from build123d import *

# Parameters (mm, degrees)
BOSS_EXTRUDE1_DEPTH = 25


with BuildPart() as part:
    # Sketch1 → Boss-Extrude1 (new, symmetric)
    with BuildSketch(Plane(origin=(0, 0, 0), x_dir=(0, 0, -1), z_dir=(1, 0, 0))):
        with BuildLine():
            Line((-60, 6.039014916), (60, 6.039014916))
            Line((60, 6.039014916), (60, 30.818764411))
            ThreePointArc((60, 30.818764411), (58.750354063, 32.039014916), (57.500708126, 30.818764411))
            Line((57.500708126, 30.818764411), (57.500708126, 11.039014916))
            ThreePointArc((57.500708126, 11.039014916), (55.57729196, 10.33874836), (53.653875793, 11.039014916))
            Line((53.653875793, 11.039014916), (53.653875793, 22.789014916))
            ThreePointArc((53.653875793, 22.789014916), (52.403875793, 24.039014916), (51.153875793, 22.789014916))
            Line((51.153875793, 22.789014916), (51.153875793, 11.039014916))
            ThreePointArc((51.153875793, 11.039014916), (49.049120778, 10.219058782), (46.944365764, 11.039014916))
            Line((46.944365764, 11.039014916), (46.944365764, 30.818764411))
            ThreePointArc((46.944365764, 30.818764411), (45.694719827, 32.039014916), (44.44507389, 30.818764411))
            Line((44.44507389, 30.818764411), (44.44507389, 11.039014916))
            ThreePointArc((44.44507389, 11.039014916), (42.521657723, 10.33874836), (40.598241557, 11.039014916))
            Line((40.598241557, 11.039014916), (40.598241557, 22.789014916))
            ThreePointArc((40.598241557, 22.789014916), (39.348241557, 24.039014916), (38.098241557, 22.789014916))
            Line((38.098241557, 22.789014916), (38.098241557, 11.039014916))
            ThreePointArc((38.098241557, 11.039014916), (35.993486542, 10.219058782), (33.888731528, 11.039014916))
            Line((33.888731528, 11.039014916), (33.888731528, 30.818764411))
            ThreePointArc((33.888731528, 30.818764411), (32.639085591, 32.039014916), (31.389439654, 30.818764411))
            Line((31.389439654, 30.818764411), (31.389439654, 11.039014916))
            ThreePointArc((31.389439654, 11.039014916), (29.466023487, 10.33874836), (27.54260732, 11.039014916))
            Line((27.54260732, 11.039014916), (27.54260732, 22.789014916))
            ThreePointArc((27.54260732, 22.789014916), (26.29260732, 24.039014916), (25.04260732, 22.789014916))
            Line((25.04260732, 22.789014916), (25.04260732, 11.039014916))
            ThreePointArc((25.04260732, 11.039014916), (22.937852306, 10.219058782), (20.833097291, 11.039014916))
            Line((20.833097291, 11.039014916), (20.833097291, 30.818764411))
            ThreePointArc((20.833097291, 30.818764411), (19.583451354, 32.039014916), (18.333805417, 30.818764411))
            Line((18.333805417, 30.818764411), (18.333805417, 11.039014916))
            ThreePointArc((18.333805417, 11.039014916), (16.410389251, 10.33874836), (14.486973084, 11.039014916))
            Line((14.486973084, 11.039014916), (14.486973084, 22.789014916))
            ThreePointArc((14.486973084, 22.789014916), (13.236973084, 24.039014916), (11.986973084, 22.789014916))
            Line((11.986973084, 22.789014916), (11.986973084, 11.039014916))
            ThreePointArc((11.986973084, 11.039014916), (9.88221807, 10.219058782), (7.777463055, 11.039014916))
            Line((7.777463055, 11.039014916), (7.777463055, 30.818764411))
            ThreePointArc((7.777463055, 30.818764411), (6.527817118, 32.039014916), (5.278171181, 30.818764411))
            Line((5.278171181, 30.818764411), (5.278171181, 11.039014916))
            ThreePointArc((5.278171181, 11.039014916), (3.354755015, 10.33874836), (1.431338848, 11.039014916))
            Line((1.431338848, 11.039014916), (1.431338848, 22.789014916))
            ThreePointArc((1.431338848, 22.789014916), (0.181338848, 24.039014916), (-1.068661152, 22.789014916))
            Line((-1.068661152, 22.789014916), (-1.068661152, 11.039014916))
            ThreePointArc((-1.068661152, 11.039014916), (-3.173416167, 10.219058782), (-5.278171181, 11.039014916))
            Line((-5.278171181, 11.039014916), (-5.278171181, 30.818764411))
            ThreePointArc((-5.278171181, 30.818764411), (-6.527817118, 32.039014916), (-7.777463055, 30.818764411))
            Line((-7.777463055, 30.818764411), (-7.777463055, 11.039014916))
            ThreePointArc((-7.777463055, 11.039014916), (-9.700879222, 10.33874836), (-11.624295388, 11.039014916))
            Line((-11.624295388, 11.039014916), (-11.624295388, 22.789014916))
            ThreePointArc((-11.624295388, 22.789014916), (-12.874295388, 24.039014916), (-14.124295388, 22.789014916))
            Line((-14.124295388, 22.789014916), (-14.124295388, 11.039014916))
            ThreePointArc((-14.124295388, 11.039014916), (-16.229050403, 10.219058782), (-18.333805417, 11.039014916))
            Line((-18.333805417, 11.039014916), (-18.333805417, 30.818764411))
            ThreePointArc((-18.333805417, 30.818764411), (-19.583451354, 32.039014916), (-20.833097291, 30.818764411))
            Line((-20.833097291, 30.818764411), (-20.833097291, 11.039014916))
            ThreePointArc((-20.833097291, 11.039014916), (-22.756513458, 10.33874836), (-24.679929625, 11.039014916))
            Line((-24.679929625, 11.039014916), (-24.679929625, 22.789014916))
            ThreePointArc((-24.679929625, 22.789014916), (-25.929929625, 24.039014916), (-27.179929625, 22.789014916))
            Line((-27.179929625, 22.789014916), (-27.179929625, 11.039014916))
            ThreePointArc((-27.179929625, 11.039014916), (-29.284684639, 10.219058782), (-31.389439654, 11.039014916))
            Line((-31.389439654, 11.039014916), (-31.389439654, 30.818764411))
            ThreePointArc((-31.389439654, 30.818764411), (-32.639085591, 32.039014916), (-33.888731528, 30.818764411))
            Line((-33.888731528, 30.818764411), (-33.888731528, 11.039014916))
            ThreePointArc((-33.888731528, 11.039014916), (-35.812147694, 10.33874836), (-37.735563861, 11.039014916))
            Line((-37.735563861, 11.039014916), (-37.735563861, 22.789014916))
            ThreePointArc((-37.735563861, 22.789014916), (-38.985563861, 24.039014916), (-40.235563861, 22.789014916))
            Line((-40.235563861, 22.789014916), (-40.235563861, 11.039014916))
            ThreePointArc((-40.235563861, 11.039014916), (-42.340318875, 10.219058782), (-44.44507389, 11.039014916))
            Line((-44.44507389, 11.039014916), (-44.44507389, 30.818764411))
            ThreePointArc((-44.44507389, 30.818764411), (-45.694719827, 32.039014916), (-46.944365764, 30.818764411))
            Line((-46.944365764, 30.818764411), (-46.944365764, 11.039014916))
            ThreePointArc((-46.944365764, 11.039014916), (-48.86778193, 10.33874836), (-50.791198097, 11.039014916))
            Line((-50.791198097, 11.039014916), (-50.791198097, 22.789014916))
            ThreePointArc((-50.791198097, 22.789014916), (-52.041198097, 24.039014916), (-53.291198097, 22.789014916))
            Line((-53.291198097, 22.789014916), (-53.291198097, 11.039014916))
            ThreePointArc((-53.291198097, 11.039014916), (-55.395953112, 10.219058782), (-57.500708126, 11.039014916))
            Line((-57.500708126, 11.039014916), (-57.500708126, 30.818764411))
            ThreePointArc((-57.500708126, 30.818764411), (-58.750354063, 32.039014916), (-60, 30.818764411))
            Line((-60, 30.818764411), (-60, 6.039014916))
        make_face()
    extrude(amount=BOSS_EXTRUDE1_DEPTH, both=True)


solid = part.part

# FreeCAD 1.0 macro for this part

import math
import FreeCAD as App
import Part
import Sketcher
Q = App.Units.Quantity

doc = App.newDocument("Part")
body = doc.addObject("PartDesign::Body", "Body")

# Sketch on YZ plane
sketch1 = doc.addObject("Sketcher::SketchObject", "Sketch")
body.addObject(sketch1)
sketch1.AttachmentSupport = (doc.YZ_Plane, [""])
sketch1.MapMode = "FlatFace"
sketch1.addGeometry(Part.LineSegment(App.Vector(6.039015, 60, 0), App.Vector(6.039015, -60, 0)), False)
sketch1.addGeometry(Part.LineSegment(App.Vector(6.039015, -60, 0), App.Vector(30.818764, -60, 0)), False)
sketch1.addGeometry(Part.ArcOfCircle(Part.Circle(App.Vector(30.789015, -58.750354, 0), App.Vector(0, 0, 1), 1.25), math.radians(-88.636255), math.radians(88.636255)), False)
sketch1.addGeometry(Part.LineSegment(App.Vector(30.818764, -57.500708, 0), App.Vector(11.039015, -57.500708, 0)), False)
sketch1.addGeometry(Part.ArcOfCircle(Part.Circle(App.Vector(13.330397, -55.577292, 0), App.Vector(0, 0, 1), 2.991649), math.radians(139.989462), math.radians(220.010538)), False)
sketch1.addGeometry(Part.LineSegment(App.Vector(11.039015, -53.653876, 0), App.Vector(22.789015, -53.653876, 0)), False)
sketch1.addGeometry(Part.ArcOfCircle(Part.Circle(App.Vector(22.789015, -52.403876, 0), App.Vector(0, 0, 1), 1.25), math.radians(-90), math.radians(90)), False)
sketch1.addGeometry(Part.LineSegment(App.Vector(22.789015, -51.153876, 0), App.Vector(11.039015, -51.153876, 0)), False)
sketch1.addGeometry(Part.ArcOfCircle(Part.Circle(App.Vector(13.330397, -49.049121, 0), App.Vector(0, 0, 1), 3.111338), math.radians(137.43089), math.radians(222.56911)), False)
sketch1.addGeometry(Part.LineSegment(App.Vector(11.039015, -46.944366, 0), App.Vector(30.818764, -46.944366, 0)), False)
sketch1.addGeometry(Part.ArcOfCircle(Part.Circle(App.Vector(30.789015, -45.69472, 0), App.Vector(0, 0, 1), 1.25), math.radians(-88.636255), math.radians(88.636255)), False)
sketch1.addGeometry(Part.LineSegment(App.Vector(30.818764, -44.445074, 0), App.Vector(11.039015, -44.445074, 0)), False)
sketch1.addGeometry(Part.ArcOfCircle(Part.Circle(App.Vector(13.330397, -42.521658, 0), App.Vector(0, 0, 1), 2.991649), math.radians(139.989462), math.radians(220.010538)), False)
sketch1.addGeometry(Part.LineSegment(App.Vector(11.039015, -40.598242, 0), App.Vector(22.789015, -40.598242, 0)), False)
sketch1.addGeometry(Part.ArcOfCircle(Part.Circle(App.Vector(22.789015, -39.348242, 0), App.Vector(0, 0, 1), 1.25), math.radians(-90), math.radians(90)), False)
sketch1.addGeometry(Part.LineSegment(App.Vector(22.789015, -38.098242, 0), App.Vector(11.039015, -38.098242, 0)), False)
sketch1.addGeometry(Part.ArcOfCircle(Part.Circle(App.Vector(13.330397, -35.993487, 0), App.Vector(0, 0, 1), 3.111338), math.radians(137.43089), math.radians(222.56911)), False)
sketch1.addGeometry(Part.LineSegment(App.Vector(11.039015, -33.888732, 0), App.Vector(30.818764, -33.888732, 0)), False)
sketch1.addGeometry(Part.ArcOfCircle(Part.Circle(App.Vector(30.789015, -32.639086, 0), App.Vector(0, 0, 1), 1.25), math.radians(-88.636255), math.radians(88.636255)), False)
sketch1.addGeometry(Part.LineSegment(App.Vector(30.818764, -31.38944, 0), App.Vector(11.039015, -31.38944, 0)), False)
sketch1.addGeometry(Part.ArcOfCircle(Part.Circle(App.Vector(13.330397, -29.466023, 0), App.Vector(0, 0, 1), 2.991649), math.radians(139.989462), math.radians(220.010538)), False)
sketch1.addGeometry(Part.LineSegment(App.Vector(11.039015, -27.542607, 0), App.Vector(22.789015, -27.542607, 0)), False)
sketch1.addGeometry(Part.ArcOfCircle(Part.Circle(App.Vector(22.789015, -26.292607, 0), App.Vector(0, 0, 1), 1.25), math.radians(-90), math.radians(90)), False)
sketch1.addGeometry(Part.LineSegment(App.Vector(22.789015, -25.042607, 0), App.Vector(11.039015, -25.042607, 0)), False)
sketch1.addGeometry(Part.ArcOfCircle(Part.Circle(App.Vector(13.330397, -22.937852, 0), App.Vector(0, 0, 1), 3.111338), math.radians(137.43089), math.radians(222.56911)), False)
sketch1.addGeometry(Part.LineSegment(App.Vector(11.039015, -20.833097, 0), App.Vector(30.818764, -20.833097, 0)), False)
sketch1.addGeometry(Part.ArcOfCircle(Part.Circle(App.Vector(30.789015, -19.583451, 0), App.Vector(0, 0, 1), 1.25), math.radians(-88.636255), math.radians(88.636255)), False)
sketch1.addGeometry(Part.LineSegment(App.Vector(30.818764, -18.333805, 0), App.Vector(11.039015, -18.333805, 0)), False)
sketch1.addGeometry(Part.ArcOfCircle(Part.Circle(App.Vector(13.330397, -16.410389, 0), App.Vector(0, 0, 1), 2.991649), math.radians(139.989462), math.radians(220.010538)), False)
sketch1.addGeometry(Part.LineSegment(App.Vector(11.039015, -14.486973, 0), App.Vector(22.789015, -14.486973, 0)), False)
sketch1.addGeometry(Part.ArcOfCircle(Part.Circle(App.Vector(22.789015, -13.236973, 0), App.Vector(0, 0, 1), 1.25), math.radians(-90), math.radians(90)), False)
sketch1.addGeometry(Part.LineSegment(App.Vector(22.789015, -11.986973, 0), App.Vector(11.039015, -11.986973, 0)), False)
sketch1.addGeometry(Part.ArcOfCircle(Part.Circle(App.Vector(13.330397, -9.882218, 0), App.Vector(0, 0, 1), 3.111338), math.radians(137.43089), math.radians(222.56911)), False)
sketch1.addGeometry(Part.LineSegment(App.Vector(11.039015, -7.777463, 0), App.Vector(30.818764, -7.777463, 0)), False)
sketch1.addGeometry(Part.ArcOfCircle(Part.Circle(App.Vector(30.789015, -6.527817, 0), App.Vector(0, 0, 1), 1.25), math.radians(-88.636255), math.radians(88.636255)), False)
sketch1.addGeometry(Part.LineSegment(App.Vector(30.818764, -5.278171, 0), App.Vector(11.039015, -5.278171, 0)), False)
sketch1.addGeometry(Part.ArcOfCircle(Part.Circle(App.Vector(13.330397, -3.354755, 0), App.Vector(0, 0, 1), 2.991649), math.radians(139.989462), math.radians(220.010538)), False)
sketch1.addGeometry(Part.LineSegment(App.Vector(11.039015, -1.431339, 0), App.Vector(22.789015, -1.431339, 0)), False)
sketch1.addGeometry(Part.ArcOfCircle(Part.Circle(App.Vector(22.789015, -0.181339, 0), App.Vector(0, 0, 1), 1.25), math.radians(-90), math.radians(90)), False)
sketch1.addGeometry(Part.LineSegment(App.Vector(22.789015, 1.068661, 0), App.Vector(11.039015, 1.068661, 0)), False)
sketch1.addGeometry(Part.ArcOfCircle(Part.Circle(App.Vector(13.330397, 3.173416, 0), App.Vector(0, 0, 1), 3.111338), math.radians(137.43089), math.radians(222.56911)), False)
sketch1.addGeometry(Part.LineSegment(App.Vector(11.039015, 5.278171, 0), App.Vector(30.818764, 5.278171, 0)), False)
sketch1.addGeometry(Part.ArcOfCircle(Part.Circle(App.Vector(30.789015, 6.527817, 0), App.Vector(0, 0, 1), 1.25), math.radians(-88.636255), math.radians(88.636255)), False)
sketch1.addGeometry(Part.LineSegment(App.Vector(30.818764, 7.777463, 0), App.Vector(11.039015, 7.777463, 0)), False)
sketch1.addGeometry(Part.ArcOfCircle(Part.Circle(App.Vector(13.330397, 9.700879, 0), App.Vector(0, 0, 1), 2.991649), math.radians(139.989462), math.radians(220.010538)), False)
sketch1.addGeometry(Part.LineSegment(App.Vector(11.039015, 11.624295, 0), App.Vector(22.789015, 11.624295, 0)), False)
sketch1.addGeometry(Part.ArcOfCircle(Part.Circle(App.Vector(22.789015, 12.874295, 0), App.Vector(0, 0, 1), 1.25), math.radians(-90), math.radians(90)), False)
sketch1.addGeometry(Part.LineSegment(App.Vector(22.789015, 14.124295, 0), App.Vector(11.039015, 14.124295, 0)), False)
sketch1.addGeometry(Part.ArcOfCircle(Part.Circle(App.Vector(13.330397, 16.22905, 0), App.Vector(0, 0, 1), 3.111338), math.radians(137.43089), math.radians(222.56911)), False)
sketch1.addGeometry(Part.LineSegment(App.Vector(11.039015, 18.333805, 0), App.Vector(30.818764, 18.333805, 0)), False)
sketch1.addGeometry(Part.ArcOfCircle(Part.Circle(App.Vector(30.789015, 19.583451, 0), App.Vector(0, 0, 1), 1.25), math.radians(-88.636255), math.radians(88.636255)), False)
sketch1.addGeometry(Part.LineSegment(App.Vector(30.818764, 20.833097, 0), App.Vector(11.039015, 20.833097, 0)), False)
sketch1.addGeometry(Part.ArcOfCircle(Part.Circle(App.Vector(13.330397, 22.756513, 0), App.Vector(0, 0, 1), 2.991649), math.radians(139.989462), math.radians(220.010538)), False)
sketch1.addGeometry(Part.LineSegment(App.Vector(11.039015, 24.67993, 0), App.Vector(22.789015, 24.67993, 0)), False)
sketch1.addGeometry(Part.ArcOfCircle(Part.Circle(App.Vector(22.789015, 25.92993, 0), App.Vector(0, 0, 1), 1.25), math.radians(-90), math.radians(90)), False)
sketch1.addGeometry(Part.LineSegment(App.Vector(22.789015, 27.17993, 0), App.Vector(11.039015, 27.17993, 0)), False)
sketch1.addGeometry(Part.ArcOfCircle(Part.Circle(App.Vector(13.330397, 29.284685, 0), App.Vector(0, 0, 1), 3.111338), math.radians(137.43089), math.radians(222.56911)), False)
sketch1.addGeometry(Part.LineSegment(App.Vector(11.039015, 31.38944, 0), App.Vector(30.818764, 31.38944, 0)), False)
sketch1.addGeometry(Part.ArcOfCircle(Part.Circle(App.Vector(30.789015, 32.639086, 0), App.Vector(0, 0, 1), 1.25), math.radians(-88.636255), math.radians(88.636255)), False)
sketch1.addGeometry(Part.LineSegment(App.Vector(30.818764, 33.888732, 0), App.Vector(11.039015, 33.888732, 0)), False)
sketch1.addGeometry(Part.ArcOfCircle(Part.Circle(App.Vector(13.330397, 35.812148, 0), App.Vector(0, 0, 1), 2.991649), math.radians(139.989462), math.radians(220.010538)), False)
sketch1.addGeometry(Part.LineSegment(App.Vector(11.039015, 37.735564, 0), App.Vector(22.789015, 37.735564, 0)), False)
sketch1.addGeometry(Part.ArcOfCircle(Part.Circle(App.Vector(22.789015, 38.985564, 0), App.Vector(0, 0, 1), 1.25), math.radians(-90), math.radians(90)), False)
sketch1.addGeometry(Part.LineSegment(App.Vector(22.789015, 40.235564, 0), App.Vector(11.039015, 40.235564, 0)), False)
sketch1.addGeometry(Part.ArcOfCircle(Part.Circle(App.Vector(13.330397, 42.340319, 0), App.Vector(0, 0, 1), 3.111338), math.radians(137.43089), math.radians(222.56911)), False)
sketch1.addGeometry(Part.LineSegment(App.Vector(11.039015, 44.445074, 0), App.Vector(30.818764, 44.445074, 0)), False)
sketch1.addGeometry(Part.ArcOfCircle(Part.Circle(App.Vector(30.789015, 45.69472, 0), App.Vector(0, 0, 1), 1.25), math.radians(-88.636255), math.radians(88.636255)), False)
sketch1.addGeometry(Part.LineSegment(App.Vector(30.818764, 46.944366, 0), App.Vector(11.039015, 46.944366, 0)), False)
sketch1.addGeometry(Part.ArcOfCircle(Part.Circle(App.Vector(13.330397, 48.867782, 0), App.Vector(0, 0, 1), 2.991649), math.radians(139.989462), math.radians(220.010538)), False)
sketch1.addGeometry(Part.LineSegment(App.Vector(11.039015, 50.791198, 0), App.Vector(22.789015, 50.791198, 0)), False)
sketch1.addGeometry(Part.ArcOfCircle(Part.Circle(App.Vector(22.789015, 52.041198, 0), App.Vector(0, 0, 1), 1.25), math.radians(-90), math.radians(90)), False)
sketch1.addGeometry(Part.LineSegment(App.Vector(22.789015, 53.291198, 0), App.Vector(11.039015, 53.291198, 0)), False)
sketch1.addGeometry(Part.ArcOfCircle(Part.Circle(App.Vector(13.330397, 55.395953, 0), App.Vector(0, 0, 1), 3.111338), math.radians(137.43089), math.radians(222.56911)), False)
sketch1.addGeometry(Part.LineSegment(App.Vector(11.039015, 57.500708, 0), App.Vector(30.818764, 57.500708, 0)), False)
sketch1.addGeometry(Part.ArcOfCircle(Part.Circle(App.Vector(30.789015, 58.750354, 0), App.Vector(0, 0, 1), 1.25), math.radians(-88.636255), math.radians(88.636255)), False)
sketch1.addGeometry(Part.LineSegment(App.Vector(30.818764, 60, 0), App.Vector(6.039015, 60, 0)), False)
sketch1.addConstraint(Sketcher.Constraint("Coincident", 0, 2, 1, 1))
sketch1.addConstraint(Sketcher.Constraint("Coincident", 1, 2, 2, 1))
sketch1.addConstraint(Sketcher.Constraint("Coincident", 2, 2, 3, 1))
sketch1.addConstraint(Sketcher.Constraint("Coincident", 3, 2, 4, 2))
sketch1.addConstraint(Sketcher.Constraint("Coincident", 4, 1, 5, 1))
sketch1.addConstraint(Sketcher.Constraint("Coincident", 5, 2, 6, 1))
sketch1.addConstraint(Sketcher.Constraint("Coincident", 6, 2, 7, 1))
sketch1.addConstraint(Sketcher.Constraint("Coincident", 7, 2, 8, 2))
sketch1.addConstraint(Sketcher.Constraint("Coincident", 8, 1, 9, 1))
sketch1.addConstraint(Sketcher.Constraint("Coincident", 9, 2, 10, 1))
sketch1.addConstraint(Sketcher.Constraint("Coincident", 10, 2, 11, 1))
sketch1.addConstraint(Sketcher.Constraint("Coincident", 11, 2, 12, 2))
sketch1.addConstraint(Sketcher.Constraint("Coincident", 12, 1, 13, 1))
sketch1.addConstraint(Sketcher.Constraint("Coincident", 13, 2, 14, 1))
sketch1.addConstraint(Sketcher.Constraint("Coincident", 14, 2, 15, 1))
sketch1.addConstraint(Sketcher.Constraint("Coincident", 15, 2, 16, 2))
sketch1.addConstraint(Sketcher.Constraint("Coincident", 16, 1, 17, 1))
sketch1.addConstraint(Sketcher.Constraint("Coincident", 17, 2, 18, 1))
sketch1.addConstraint(Sketcher.Constraint("Coincident", 18, 2, 19, 1))
sketch1.addConstraint(Sketcher.Constraint("Coincident", 19, 2, 20, 2))
sketch1.addConstraint(Sketcher.Constraint("Coincident", 20, 1, 21, 1))
sketch1.addConstraint(Sketcher.Constraint("Coincident", 21, 2, 22, 1))
sketch1.addConstraint(Sketcher.Constraint("Coincident", 22, 2, 23, 1))
sketch1.addConstraint(Sketcher.Constraint("Coincident", 23, 2, 24, 2))
sketch1.addConstraint(Sketcher.Constraint("Coincident", 24, 1, 25, 1))
sketch1.addConstraint(Sketcher.Constraint("Coincident", 25, 2, 26, 1))
sketch1.addConstraint(Sketcher.Constraint("Coincident", 26, 2, 27, 1))
sketch1.addConstraint(Sketcher.Constraint("Coincident", 27, 2, 28, 2))
sketch1.addConstraint(Sketcher.Constraint("Coincident", 28, 1, 29, 1))
sketch1.addConstraint(Sketcher.Constraint("Coincident", 29, 2, 30, 1))
sketch1.addConstraint(Sketcher.Constraint("Coincident", 30, 2, 31, 1))
sketch1.addConstraint(Sketcher.Constraint("Coincident", 31, 2, 32, 2))
sketch1.addConstraint(Sketcher.Constraint("Coincident", 32, 1, 33, 1))
sketch1.addConstraint(Sketcher.Constraint("Coincident", 33, 2, 34, 1))
sketch1.addConstraint(Sketcher.Constraint("Coincident", 34, 2, 35, 1))
sketch1.addConstraint(Sketcher.Constraint("Coincident", 35, 2, 36, 2))
sketch1.addConstraint(Sketcher.Constraint("Coincident", 36, 1, 37, 1))
sketch1.addConstraint(Sketcher.Constraint("Coincident", 37, 2, 38, 1))
sketch1.addConstraint(Sketcher.Constraint("Coincident", 38, 2, 39, 1))
sketch1.addConstraint(Sketcher.Constraint("Coincident", 39, 2, 40, 2))
sketch1.addConstraint(Sketcher.Constraint("Coincident", 40, 1, 41, 1))
sketch1.addConstraint(Sketcher.Constraint("Coincident", 41, 2, 42, 1))
sketch1.addConstraint(Sketcher.Constraint("Coincident", 42, 2, 43, 1))
sketch1.addConstraint(Sketcher.Constraint("Coincident", 43, 2, 44, 2))
sketch1.addConstraint(Sketcher.Constraint("Coincident", 44, 1, 45, 1))
sketch1.addConstraint(Sketcher.Constraint("Coincident", 45, 2, 46, 1))
sketch1.addConstraint(Sketcher.Constraint("Coincident", 46, 2, 47, 1))
sketch1.addConstraint(Sketcher.Constraint("Coincident", 47, 2, 48, 2))
sketch1.addConstraint(Sketcher.Constraint("Coincident", 48, 1, 49, 1))
sketch1.addConstraint(Sketcher.Constraint("Coincident", 49, 2, 50, 1))
sketch1.addConstraint(Sketcher.Constraint("Coincident", 50, 2, 51, 1))
sketch1.addConstraint(Sketcher.Constraint("Coincident", 51, 2, 52, 2))
sketch1.addConstraint(Sketcher.Constraint("Coincident", 52, 1, 53, 1))
sketch1.addConstraint(Sketcher.Constraint("Coincident", 53, 2, 54, 1))
sketch1.addConstraint(Sketcher.Constraint("Coincident", 54, 2, 55, 1))
sketch1.addConstraint(Sketcher.Constraint("Coincident", 55, 2, 56, 2))
sketch1.addConstraint(Sketcher.Constraint("Coincident", 56, 1, 57, 1))
sketch1.addConstraint(Sketcher.Constraint("Coincident", 57, 2, 58, 1))
sketch1.addConstraint(Sketcher.Constraint("Coincident", 58, 2, 59, 1))
sketch1.addConstraint(Sketcher.Constraint("Coincident", 59, 2, 60, 2))
sketch1.addConstraint(Sketcher.Constraint("Coincident", 60, 1, 61, 1))
sketch1.addConstraint(Sketcher.Constraint("Coincident", 61, 2, 62, 1))
sketch1.addConstraint(Sketcher.Constraint("Coincident", 62, 2, 63, 1))
sketch1.addConstraint(Sketcher.Constraint("Coincident", 63, 2, 64, 2))
sketch1.addConstraint(Sketcher.Constraint("Coincident", 64, 1, 65, 1))
sketch1.addConstraint(Sketcher.Constraint("Coincident", 65, 2, 66, 1))
sketch1.addConstraint(Sketcher.Constraint("Coincident", 66, 2, 67, 1))
sketch1.addConstraint(Sketcher.Constraint("Coincident", 67, 2, 68, 2))
sketch1.addConstraint(Sketcher.Constraint("Coincident", 68, 1, 69, 1))
sketch1.addConstraint(Sketcher.Constraint("Coincident", 69, 2, 70, 1))
sketch1.addConstraint(Sketcher.Constraint("Coincident", 70, 2, 71, 1))
sketch1.addConstraint(Sketcher.Constraint("Coincident", 71, 2, 72, 2))
sketch1.addConstraint(Sketcher.Constraint("Coincident", 72, 1, 73, 1))
sketch1.addConstraint(Sketcher.Constraint("Coincident", 73, 2, 74, 1))
sketch1.addConstraint(Sketcher.Constraint("Coincident", 74, 2, 75, 1))
sketch1.addConstraint(Sketcher.Constraint("Coincident", 75, 2, 0, 1))
sketch1.addConstraint(Sketcher.Constraint("Vertical", 0))
sketch1.addConstraint(Sketcher.Constraint("Horizontal", 1))
sketch1.addConstraint(Sketcher.Constraint("Horizontal", 3))
sketch1.addConstraint(Sketcher.Constraint("Horizontal", 5))
sketch1.addConstraint(Sketcher.Constraint("Horizontal", 7))
sketch1.addConstraint(Sketcher.Constraint("Horizontal", 9))
sketch1.addConstraint(Sketcher.Constraint("Horizontal", 11))
sketch1.addConstraint(Sketcher.Constraint("Horizontal", 13))
sketch1.addConstraint(Sketcher.Constraint("Horizontal", 15))
sketch1.addConstraint(Sketcher.Constraint("Horizontal", 17))
sketch1.addConstraint(Sketcher.Constraint("Horizontal", 19))
sketch1.addConstraint(Sketcher.Constraint("Horizontal", 21))
sketch1.addConstraint(Sketcher.Constraint("Horizontal", 23))
sketch1.addConstraint(Sketcher.Constraint("Horizontal", 25))
sketch1.addConstraint(Sketcher.Constraint("Horizontal", 27))
sketch1.addConstraint(Sketcher.Constraint("Horizontal", 29))
sketch1.addConstraint(Sketcher.Constraint("Horizontal", 31))
sketch1.addConstraint(Sketcher.Constraint("Horizontal", 33))
sketch1.addConstraint(Sketcher.Constraint("Horizontal", 35))
sketch1.addConstraint(Sketcher.Constraint("Horizontal", 37))
sketch1.addConstraint(Sketcher.Constraint("Horizontal", 39))
sketch1.addConstraint(Sketcher.Constraint("Horizontal", 41))
sketch1.addConstraint(Sketcher.Constraint("Horizontal", 43))
sketch1.addConstraint(Sketcher.Constraint("Horizontal", 45))
sketch1.addConstraint(Sketcher.Constraint("Horizontal", 47))
sketch1.addConstraint(Sketcher.Constraint("Horizontal", 49))
sketch1.addConstraint(Sketcher.Constraint("Horizontal", 51))
sketch1.addConstraint(Sketcher.Constraint("Horizontal", 53))
sketch1.addConstraint(Sketcher.Constraint("Horizontal", 55))
sketch1.addConstraint(Sketcher.Constraint("Horizontal", 57))
sketch1.addConstraint(Sketcher.Constraint("Horizontal", 59))
sketch1.addConstraint(Sketcher.Constraint("Horizontal", 61))
sketch1.addConstraint(Sketcher.Constraint("Horizontal", 63))
sketch1.addConstraint(Sketcher.Constraint("Horizontal", 65))
sketch1.addConstraint(Sketcher.Constraint("Horizontal", 67))
sketch1.addConstraint(Sketcher.Constraint("Horizontal", 69))
sketch1.addConstraint(Sketcher.Constraint("Horizontal", 71))
sketch1.addConstraint(Sketcher.Constraint("Horizontal", 73))
sketch1.addConstraint(Sketcher.Constraint("Horizontal", 75))
sketch1.addConstraint(Sketcher.Constraint("DistanceY", 0, 2, 0, 1, Q("120 mm")))
sketch1.addConstraint(Sketcher.Constraint("Radius", 2, Q("1.25 mm")))
sketch1.addConstraint(Sketcher.Constraint("Radius", 6, Q("1.25 mm")))
sketch1.addConstraint(Sketcher.Constraint("Radius", 10, Q("1.25 mm")))
sketch1.addConstraint(Sketcher.Constraint("Radius", 14, Q("1.25 mm")))
sketch1.addConstraint(Sketcher.Constraint("Radius", 18, Q("1.25 mm")))
sketch1.addConstraint(Sketcher.Constraint("Radius", 22, Q("1.25 mm")))
sketch1.addConstraint(Sketcher.Constraint("Radius", 26, Q("1.25 mm")))
sketch1.addConstraint(Sketcher.Constraint("Radius", 30, Q("1.25 mm")))
sketch1.addConstraint(Sketcher.Constraint("Radius", 34, Q("1.25 mm")))
sketch1.addConstraint(Sketcher.Constraint("Radius", 38, Q("1.25 mm")))
sketch1.addConstraint(Sketcher.Constraint("Radius", 42, Q("1.25 mm")))
sketch1.addConstraint(Sketcher.Constraint("Radius", 46, Q("1.25 mm")))
sketch1.addConstraint(Sketcher.Constraint("Radius", 50, Q("1.25 mm")))
sketch1.addConstraint(Sketcher.Constraint("Radius", 54, Q("1.25 mm")))
sketch1.addConstraint(Sketcher.Constraint("Radius", 58, Q("1.25 mm")))
sketch1.addConstraint(Sketcher.Constraint("Radius", 62, Q("1.25 mm")))
sketch1.addConstraint(Sketcher.Constraint("Radius", 66, Q("1.25 mm")))
sketch1.addConstraint(Sketcher.Constraint("Radius", 70, Q("1.25 mm")))
sketch1.addConstraint(Sketcher.Constraint("Radius", 74, Q("1.25 mm")))
sketch1.addConstraint(Sketcher.Constraint("DistanceY", 0, 2, -1, 1, Q("60 mm")))
sketch1.addConstraint(Sketcher.Constraint("DistanceX", 5, 1, 5, 2, Q("11.75 mm")))
sketch1.addConstraint(Sketcher.Constraint("DistanceX", 7, 2, 7, 1, Q("11.75 mm")))
sketch1.addConstraint(Sketcher.Constraint("DistanceX", 13, 1, 13, 2, Q("11.75 mm")))
sketch1.addConstraint(Sketcher.Constraint("DistanceX", 15, 2, 15, 1, Q("11.75 mm")))
sketch1.addConstraint(Sketcher.Constraint("DistanceX", 21, 1, 21, 2, Q("11.75 mm")))
sketch1.addConstraint(Sketcher.Constraint("DistanceX", 23, 2, 23, 1, Q("11.75 mm")))
sketch1.addConstraint(Sketcher.Constraint("DistanceX", 29, 1, 29, 2, Q("11.75 mm")))
sketch1.addConstraint(Sketcher.Constraint("DistanceX", 31, 2, 31, 1, Q("11.75 mm")))
sketch1.addConstraint(Sketcher.Constraint("DistanceX", 37, 1, 37, 2, Q("11.75 mm")))
sketch1.addConstraint(Sketcher.Constraint("DistanceX", 39, 2, 39, 1, Q("11.75 mm")))
sketch1.addConstraint(Sketcher.Constraint("DistanceX", 45, 1, 45, 2, Q("11.75 mm")))
sketch1.addConstraint(Sketcher.Constraint("DistanceX", 47, 2, 47, 1, Q("11.75 mm")))
sketch1.addConstraint(Sketcher.Constraint("DistanceX", 53, 1, 53, 2, Q("11.75 mm")))
sketch1.addConstraint(Sketcher.Constraint("DistanceX", 55, 2, 55, 1, Q("11.75 mm")))
sketch1.addConstraint(Sketcher.Constraint("DistanceX", 61, 1, 61, 2, Q("11.75 mm")))
sketch1.addConstraint(Sketcher.Constraint("DistanceX", 63, 2, 63, 1, Q("11.75 mm")))
sketch1.addConstraint(Sketcher.Constraint("DistanceX", 69, 1, 69, 2, Q("11.75 mm")))
sketch1.addConstraint(Sketcher.Constraint("DistanceX", 71, 2, 71, 1, Q("11.75 mm")))
sketch1.addConstraint(Sketcher.Constraint("Radius", 4, Q("2.991649 mm")))
sketch1.addConstraint(Sketcher.Constraint("Radius", 8, Q("3.111338 mm")))
sketch1.addConstraint(Sketcher.Constraint("Radius", 12, Q("2.991649 mm")))
sketch1.addConstraint(Sketcher.Constraint("Radius", 16, Q("3.111338 mm")))
sketch1.addConstraint(Sketcher.Constraint("Radius", 20, Q("2.991649 mm")))
sketch1.addConstraint(Sketcher.Constraint("Radius", 24, Q("3.111338 mm")))
sketch1.addConstraint(Sketcher.Constraint("Radius", 28, Q("2.991649 mm")))
sketch1.addConstraint(Sketcher.Constraint("Radius", 32, Q("3.111338 mm")))
sketch1.addConstraint(Sketcher.Constraint("Radius", 36, Q("2.991649 mm")))
sketch1.addConstraint(Sketcher.Constraint("Radius", 40, Q("3.111338 mm")))
sketch1.addConstraint(Sketcher.Constraint("Radius", 44, Q("2.991649 mm")))
sketch1.addConstraint(Sketcher.Constraint("Radius", 48, Q("3.111338 mm")))
sketch1.addConstraint(Sketcher.Constraint("Radius", 52, Q("2.991649 mm")))
sketch1.addConstraint(Sketcher.Constraint("Radius", 56, Q("3.111338 mm")))
sketch1.addConstraint(Sketcher.Constraint("Radius", 60, Q("2.991649 mm")))
sketch1.addConstraint(Sketcher.Constraint("Radius", 64, Q("3.111338 mm")))
sketch1.addConstraint(Sketcher.Constraint("Radius", 68, Q("2.991649 mm")))
sketch1.addConstraint(Sketcher.Constraint("Radius", 72, Q("3.111338 mm")))
sketch1.addConstraint(Sketcher.Constraint("DistanceX", 1, 1, 1, 2, Q("24.779749 mm")))
sketch1.addConstraint(Sketcher.Constraint("DistanceX", 3, 2, 3, 1, Q("19.779749 mm")))
sketch1.addConstraint(Sketcher.Constraint("DistanceX", 9, 1, 9, 2, Q("19.779749 mm")))
sketch1.addConstraint(Sketcher.Constraint("DistanceX", 11, 2, 11, 1, Q("19.779749 mm")))
sketch1.addConstraint(Sketcher.Constraint("DistanceX", 17, 1, 17, 2, Q("19.779749 mm")))
sketch1.addConstraint(Sketcher.Constraint("DistanceX", 19, 2, 19, 1, Q("19.779749 mm")))
sketch1.addConstraint(Sketcher.Constraint("DistanceX", 25, 1, 25, 2, Q("19.779749 mm")))
sketch1.addConstraint(Sketcher.Constraint("DistanceX", 27, 2, 27, 1, Q("19.779749 mm")))
sketch1.addConstraint(Sketcher.Constraint("DistanceX", 33, 1, 33, 2, Q("19.779749 mm")))
sketch1.addConstraint(Sketcher.Constraint("DistanceX", 35, 2, 35, 1, Q("19.779749 mm")))
sketch1.addConstraint(Sketcher.Constraint("DistanceX", 41, 1, 41, 2, Q("19.779749 mm")))
sketch1.addConstraint(Sketcher.Constraint("DistanceX", 43, 2, 43, 1, Q("19.779749 mm")))
sketch1.addConstraint(Sketcher.Constraint("DistanceX", 49, 1, 49, 2, Q("19.779749 mm")))
sketch1.addConstraint(Sketcher.Constraint("DistanceX", 51, 2, 51, 1, Q("19.779749 mm")))
sketch1.addConstraint(Sketcher.Constraint("DistanceX", 57, 1, 57, 2, Q("19.779749 mm")))
sketch1.addConstraint(Sketcher.Constraint("DistanceX", 59, 2, 59, 1, Q("19.779749 mm")))
sketch1.addConstraint(Sketcher.Constraint("DistanceX", 65, 1, 65, 2, Q("19.779749 mm")))
sketch1.addConstraint(Sketcher.Constraint("DistanceX", 67, 2, 67, 1, Q("19.779749 mm")))
sketch1.addConstraint(Sketcher.Constraint("DistanceX", 73, 1, 73, 2, Q("19.779749 mm")))
sketch1.addConstraint(Sketcher.Constraint("DistanceX", 75, 2, 75, 1, Q("24.779749 mm")))
sketch1.addConstraint(Sketcher.Constraint("DistanceY", -1, 1, 70, 3, Q("52.041198 mm")))
sketch1.addConstraint(Sketcher.Constraint("DistanceY", 4, 3, -1, 1, Q("55.577292 mm")))
sketch1.addConstraint(Sketcher.Constraint("DistanceY", 8, 3, -1, 1, Q("49.049121 mm")))
sketch1.addConstraint(Sketcher.Constraint("DistanceY", 10, 3, -1, 1, Q("45.69472 mm")))
sketch1.addConstraint(Sketcher.Constraint("DistanceY", 14, 3, -1, 1, Q("39.348242 mm")))
sketch1.addConstraint(Sketcher.Constraint("DistanceY", 26, 3, -1, 1, Q("19.583451 mm")))
sketch1.addConstraint(Sketcher.Constraint("DistanceY", 28, 3, -1, 1, Q("16.410389 mm")))
sketch1.addConstraint(Sketcher.Constraint("DistanceY", 32, 3, -1, 1, Q("9.882218 mm")))
sketch1.addConstraint(Sketcher.Constraint("DistanceY", 38, 3, -1, 1, Q("0.181339 mm")))
sketch1.addConstraint(Sketcher.Constraint("DistanceY", -1, 1, 44, 3, Q("9.700879 mm")))
sketch1.addConstraint(Sketcher.Constraint("DistanceY", -1, 1, 48, 3, Q("16.22905 mm")))
sketch1.addConstraint(Sketcher.Constraint("DistanceY", -1, 1, 50, 3, Q("19.583451 mm")))
sketch1.addConstraint(Sketcher.Constraint("DistanceY", -1, 1, 54, 3, Q("25.92993 mm")))
sketch1.addConstraint(Sketcher.Constraint("DistanceY", -1, 1, 64, 3, Q("42.340319 mm")))
sketch1.addConstraint(Sketcher.Constraint("DistanceY", -1, 1, 66, 3, Q("45.69472 mm")))
sketch1.addConstraint(Sketcher.Constraint("DistanceY", -1, 1, 68, 3, Q("48.867782 mm")))
sketch1.addConstraint(Sketcher.Constraint("DistanceY", 2, 2, -1, 1, Q("57.500708 mm")))
sketch1.addConstraint(Sketcher.Constraint("DistanceY", 16, 1, -1, 1, Q("33.888732 mm")))
sketch1.addConstraint(Sketcher.Constraint("DistanceY", 18, 2, -1, 1, Q("31.38944 mm")))
sketch1.addConstraint(Sketcher.Constraint("DistanceY", 34, 2, -1, 1, Q("5.278171 mm")))
sketch1.addConstraint(Sketcher.Constraint("DistanceY", -1, 1, 40, 1, Q("5.278171 mm")))
sketch1.addConstraint(Sketcher.Constraint("DistanceY", -1, 1, 56, 1, Q("31.38944 mm")))
sketch1.addConstraint(Sketcher.Constraint("DistanceY", -1, 1, 58, 2, Q("33.888732 mm")))
sketch1.addConstraint(Sketcher.Constraint("DistanceY", -1, 1, 72, 1, Q("57.500708 mm")))
sketch1.addConstraint(Sketcher.Constraint("DistanceX", -1, 1, 2, 3, Q("30.789015 mm")))
sketch1.addConstraint(Sketcher.Constraint("DistanceY", 2, 3, -1, 1, Q("58.750354 mm")))
sketch1.addConstraint(Sketcher.Constraint("DistanceX", -1, 1, 6, 3, Q("22.789015 mm")))
sketch1.addConstraint(Sketcher.Constraint("DistanceY", 6, 3, -1, 1, Q("52.403876 mm")))
sketch1.addConstraint(Sketcher.Constraint("DistanceX", -1, 1, 8, 3, Q("13.330397 mm")))
sketch1.addConstraint(Sketcher.Constraint("DistanceX", -1, 1, 10, 3, Q("30.789015 mm")))
sketch1.addConstraint(Sketcher.Constraint("DistanceX", -1, 1, 12, 3, Q("13.330397 mm")))
sketch1.addConstraint(Sketcher.Constraint("DistanceY", 12, 3, -1, 1, Q("42.521658 mm")))
sketch1.addConstraint(Sketcher.Constraint("DistanceX", -1, 1, 14, 3, Q("22.789015 mm")))
sketch1.addConstraint(Sketcher.Constraint("DistanceX", -1, 1, 16, 3, Q("13.330397 mm")))
sketch1.addConstraint(Sketcher.Constraint("DistanceY", 16, 3, -1, 1, Q("35.993487 mm")))
sketch1.addConstraint(Sketcher.Constraint("DistanceX", -1, 1, 18, 3, Q("30.789015 mm")))
sketch1.addConstraint(Sketcher.Constraint("DistanceX", -1, 1, 20, 3, Q("13.330397 mm")))
sketch1.addConstraint(Sketcher.Constraint("DistanceX", -1, 1, 22, 3, Q("22.789015 mm")))
sketch1.addConstraint(Sketcher.Constraint("DistanceY", 22, 3, -1, 1, Q("26.292607 mm")))
sketch1.addConstraint(Sketcher.Constraint("DistanceX", -1, 1, 24, 3, Q("13.330397 mm")))
sketch1.addConstraint(Sketcher.Constraint("DistanceY", 24, 3, -1, 1, Q("22.937852 mm")))
sketch1.addConstraint(Sketcher.Constraint("DistanceX", -1, 1, 26, 3, Q("30.789015 mm")))
sketch1.addConstraint(Sketcher.Constraint("DistanceX", -1, 1, 28, 3, Q("13.330397 mm")))
sketch1.addConstraint(Sketcher.Constraint("DistanceX", -1, 1, 30, 3, Q("22.789015 mm")))
sketch1.addConstraint(Sketcher.Constraint("DistanceY", 30, 3, -1, 1, Q("13.236973 mm")))
sketch1.addConstraint(Sketcher.Constraint("DistanceX", -1, 1, 32, 3, Q("13.330397 mm")))
sketch1.addConstraint(Sketcher.Constraint("DistanceX", -1, 1, 34, 3, Q("30.789015 mm")))
sketch1.addConstraint(Sketcher.Constraint("DistanceY", 34, 3, -1, 1, Q("6.527817 mm")))
sketch1.addConstraint(Sketcher.Constraint("DistanceX", -1, 1, 36, 3, Q("13.330397 mm")))
sketch1.addConstraint(Sketcher.Constraint("DistanceX", -1, 1, 38, 3, Q("22.789015 mm")))
sketch1.addConstraint(Sketcher.Constraint("DistanceX", -1, 1, 40, 3, Q("13.330397 mm")))
sketch1.addConstraint(Sketcher.Constraint("DistanceY", -1, 1, 40, 3, Q("3.173416 mm")))
sketch1.addConstraint(Sketcher.Constraint("DistanceX", -1, 1, 42, 3, Q("30.789015 mm")))
sketch1.addConstraint(Sketcher.Constraint("DistanceX", -1, 1, 44, 3, Q("13.330397 mm")))
sketch1.addConstraint(Sketcher.Constraint("DistanceX", -1, 1, 46, 3, Q("22.789015 mm")))
sketch1.addConstraint(Sketcher.Constraint("DistanceY", -1, 1, 46, 3, Q("12.874295 mm")))
sketch1.addConstraint(Sketcher.Constraint("DistanceX", -1, 1, 48, 3, Q("13.330397 mm")))
sketch1.addConstraint(Sketcher.Constraint("DistanceX", -1, 1, 50, 3, Q("30.789015 mm")))
sketch1.addConstraint(Sketcher.Constraint("DistanceX", -1, 1, 52, 3, Q("13.330397 mm")))
sketch1.addConstraint(Sketcher.Constraint("DistanceY", -1, 1, 52, 3, Q("22.756513 mm")))
sketch1.addConstraint(Sketcher.Constraint("DistanceX", -1, 1, 54, 3, Q("22.789015 mm")))
sketch1.addConstraint(Sketcher.Constraint("DistanceX", -1, 1, 56, 3, Q("13.330397 mm")))
sketch1.addConstraint(Sketcher.Constraint("DistanceY", -1, 1, 56, 3, Q("29.284685 mm")))
sketch1.addConstraint(Sketcher.Constraint("DistanceX", -1, 1, 58, 3, Q("30.789015 mm")))
sketch1.addConstraint(Sketcher.Constraint("DistanceX", -1, 1, 60, 3, Q("13.330397 mm")))
sketch1.addConstraint(Sketcher.Constraint("DistanceX", -1, 1, 62, 3, Q("22.789015 mm")))
sketch1.addConstraint(Sketcher.Constraint("DistanceY", -1, 1, 62, 3, Q("38.985564 mm")))
sketch1.addConstraint(Sketcher.Constraint("DistanceX", -1, 1, 64, 3, Q("13.330397 mm")))
sketch1.addConstraint(Sketcher.Constraint("DistanceX", -1, 1, 66, 3, Q("30.789015 mm")))
sketch1.addConstraint(Sketcher.Constraint("DistanceX", -1, 1, 68, 3, Q("13.330397 mm")))
sketch1.addConstraint(Sketcher.Constraint("DistanceX", -1, 1, 70, 3, Q("22.789015 mm")))
sketch1.addConstraint(Sketcher.Constraint("DistanceX", -1, 1, 72, 3, Q("13.330397 mm")))
sketch1.addConstraint(Sketcher.Constraint("DistanceY", -1, 1, 72, 3, Q("55.395953 mm")))
pad1 = doc.addObject("PartDesign::Pad", "Pad")
body.addObject(pad1)
pad1.Profile = sketch1
pad1.Length = 50
pad1.Midplane = True

doc.recompute()
